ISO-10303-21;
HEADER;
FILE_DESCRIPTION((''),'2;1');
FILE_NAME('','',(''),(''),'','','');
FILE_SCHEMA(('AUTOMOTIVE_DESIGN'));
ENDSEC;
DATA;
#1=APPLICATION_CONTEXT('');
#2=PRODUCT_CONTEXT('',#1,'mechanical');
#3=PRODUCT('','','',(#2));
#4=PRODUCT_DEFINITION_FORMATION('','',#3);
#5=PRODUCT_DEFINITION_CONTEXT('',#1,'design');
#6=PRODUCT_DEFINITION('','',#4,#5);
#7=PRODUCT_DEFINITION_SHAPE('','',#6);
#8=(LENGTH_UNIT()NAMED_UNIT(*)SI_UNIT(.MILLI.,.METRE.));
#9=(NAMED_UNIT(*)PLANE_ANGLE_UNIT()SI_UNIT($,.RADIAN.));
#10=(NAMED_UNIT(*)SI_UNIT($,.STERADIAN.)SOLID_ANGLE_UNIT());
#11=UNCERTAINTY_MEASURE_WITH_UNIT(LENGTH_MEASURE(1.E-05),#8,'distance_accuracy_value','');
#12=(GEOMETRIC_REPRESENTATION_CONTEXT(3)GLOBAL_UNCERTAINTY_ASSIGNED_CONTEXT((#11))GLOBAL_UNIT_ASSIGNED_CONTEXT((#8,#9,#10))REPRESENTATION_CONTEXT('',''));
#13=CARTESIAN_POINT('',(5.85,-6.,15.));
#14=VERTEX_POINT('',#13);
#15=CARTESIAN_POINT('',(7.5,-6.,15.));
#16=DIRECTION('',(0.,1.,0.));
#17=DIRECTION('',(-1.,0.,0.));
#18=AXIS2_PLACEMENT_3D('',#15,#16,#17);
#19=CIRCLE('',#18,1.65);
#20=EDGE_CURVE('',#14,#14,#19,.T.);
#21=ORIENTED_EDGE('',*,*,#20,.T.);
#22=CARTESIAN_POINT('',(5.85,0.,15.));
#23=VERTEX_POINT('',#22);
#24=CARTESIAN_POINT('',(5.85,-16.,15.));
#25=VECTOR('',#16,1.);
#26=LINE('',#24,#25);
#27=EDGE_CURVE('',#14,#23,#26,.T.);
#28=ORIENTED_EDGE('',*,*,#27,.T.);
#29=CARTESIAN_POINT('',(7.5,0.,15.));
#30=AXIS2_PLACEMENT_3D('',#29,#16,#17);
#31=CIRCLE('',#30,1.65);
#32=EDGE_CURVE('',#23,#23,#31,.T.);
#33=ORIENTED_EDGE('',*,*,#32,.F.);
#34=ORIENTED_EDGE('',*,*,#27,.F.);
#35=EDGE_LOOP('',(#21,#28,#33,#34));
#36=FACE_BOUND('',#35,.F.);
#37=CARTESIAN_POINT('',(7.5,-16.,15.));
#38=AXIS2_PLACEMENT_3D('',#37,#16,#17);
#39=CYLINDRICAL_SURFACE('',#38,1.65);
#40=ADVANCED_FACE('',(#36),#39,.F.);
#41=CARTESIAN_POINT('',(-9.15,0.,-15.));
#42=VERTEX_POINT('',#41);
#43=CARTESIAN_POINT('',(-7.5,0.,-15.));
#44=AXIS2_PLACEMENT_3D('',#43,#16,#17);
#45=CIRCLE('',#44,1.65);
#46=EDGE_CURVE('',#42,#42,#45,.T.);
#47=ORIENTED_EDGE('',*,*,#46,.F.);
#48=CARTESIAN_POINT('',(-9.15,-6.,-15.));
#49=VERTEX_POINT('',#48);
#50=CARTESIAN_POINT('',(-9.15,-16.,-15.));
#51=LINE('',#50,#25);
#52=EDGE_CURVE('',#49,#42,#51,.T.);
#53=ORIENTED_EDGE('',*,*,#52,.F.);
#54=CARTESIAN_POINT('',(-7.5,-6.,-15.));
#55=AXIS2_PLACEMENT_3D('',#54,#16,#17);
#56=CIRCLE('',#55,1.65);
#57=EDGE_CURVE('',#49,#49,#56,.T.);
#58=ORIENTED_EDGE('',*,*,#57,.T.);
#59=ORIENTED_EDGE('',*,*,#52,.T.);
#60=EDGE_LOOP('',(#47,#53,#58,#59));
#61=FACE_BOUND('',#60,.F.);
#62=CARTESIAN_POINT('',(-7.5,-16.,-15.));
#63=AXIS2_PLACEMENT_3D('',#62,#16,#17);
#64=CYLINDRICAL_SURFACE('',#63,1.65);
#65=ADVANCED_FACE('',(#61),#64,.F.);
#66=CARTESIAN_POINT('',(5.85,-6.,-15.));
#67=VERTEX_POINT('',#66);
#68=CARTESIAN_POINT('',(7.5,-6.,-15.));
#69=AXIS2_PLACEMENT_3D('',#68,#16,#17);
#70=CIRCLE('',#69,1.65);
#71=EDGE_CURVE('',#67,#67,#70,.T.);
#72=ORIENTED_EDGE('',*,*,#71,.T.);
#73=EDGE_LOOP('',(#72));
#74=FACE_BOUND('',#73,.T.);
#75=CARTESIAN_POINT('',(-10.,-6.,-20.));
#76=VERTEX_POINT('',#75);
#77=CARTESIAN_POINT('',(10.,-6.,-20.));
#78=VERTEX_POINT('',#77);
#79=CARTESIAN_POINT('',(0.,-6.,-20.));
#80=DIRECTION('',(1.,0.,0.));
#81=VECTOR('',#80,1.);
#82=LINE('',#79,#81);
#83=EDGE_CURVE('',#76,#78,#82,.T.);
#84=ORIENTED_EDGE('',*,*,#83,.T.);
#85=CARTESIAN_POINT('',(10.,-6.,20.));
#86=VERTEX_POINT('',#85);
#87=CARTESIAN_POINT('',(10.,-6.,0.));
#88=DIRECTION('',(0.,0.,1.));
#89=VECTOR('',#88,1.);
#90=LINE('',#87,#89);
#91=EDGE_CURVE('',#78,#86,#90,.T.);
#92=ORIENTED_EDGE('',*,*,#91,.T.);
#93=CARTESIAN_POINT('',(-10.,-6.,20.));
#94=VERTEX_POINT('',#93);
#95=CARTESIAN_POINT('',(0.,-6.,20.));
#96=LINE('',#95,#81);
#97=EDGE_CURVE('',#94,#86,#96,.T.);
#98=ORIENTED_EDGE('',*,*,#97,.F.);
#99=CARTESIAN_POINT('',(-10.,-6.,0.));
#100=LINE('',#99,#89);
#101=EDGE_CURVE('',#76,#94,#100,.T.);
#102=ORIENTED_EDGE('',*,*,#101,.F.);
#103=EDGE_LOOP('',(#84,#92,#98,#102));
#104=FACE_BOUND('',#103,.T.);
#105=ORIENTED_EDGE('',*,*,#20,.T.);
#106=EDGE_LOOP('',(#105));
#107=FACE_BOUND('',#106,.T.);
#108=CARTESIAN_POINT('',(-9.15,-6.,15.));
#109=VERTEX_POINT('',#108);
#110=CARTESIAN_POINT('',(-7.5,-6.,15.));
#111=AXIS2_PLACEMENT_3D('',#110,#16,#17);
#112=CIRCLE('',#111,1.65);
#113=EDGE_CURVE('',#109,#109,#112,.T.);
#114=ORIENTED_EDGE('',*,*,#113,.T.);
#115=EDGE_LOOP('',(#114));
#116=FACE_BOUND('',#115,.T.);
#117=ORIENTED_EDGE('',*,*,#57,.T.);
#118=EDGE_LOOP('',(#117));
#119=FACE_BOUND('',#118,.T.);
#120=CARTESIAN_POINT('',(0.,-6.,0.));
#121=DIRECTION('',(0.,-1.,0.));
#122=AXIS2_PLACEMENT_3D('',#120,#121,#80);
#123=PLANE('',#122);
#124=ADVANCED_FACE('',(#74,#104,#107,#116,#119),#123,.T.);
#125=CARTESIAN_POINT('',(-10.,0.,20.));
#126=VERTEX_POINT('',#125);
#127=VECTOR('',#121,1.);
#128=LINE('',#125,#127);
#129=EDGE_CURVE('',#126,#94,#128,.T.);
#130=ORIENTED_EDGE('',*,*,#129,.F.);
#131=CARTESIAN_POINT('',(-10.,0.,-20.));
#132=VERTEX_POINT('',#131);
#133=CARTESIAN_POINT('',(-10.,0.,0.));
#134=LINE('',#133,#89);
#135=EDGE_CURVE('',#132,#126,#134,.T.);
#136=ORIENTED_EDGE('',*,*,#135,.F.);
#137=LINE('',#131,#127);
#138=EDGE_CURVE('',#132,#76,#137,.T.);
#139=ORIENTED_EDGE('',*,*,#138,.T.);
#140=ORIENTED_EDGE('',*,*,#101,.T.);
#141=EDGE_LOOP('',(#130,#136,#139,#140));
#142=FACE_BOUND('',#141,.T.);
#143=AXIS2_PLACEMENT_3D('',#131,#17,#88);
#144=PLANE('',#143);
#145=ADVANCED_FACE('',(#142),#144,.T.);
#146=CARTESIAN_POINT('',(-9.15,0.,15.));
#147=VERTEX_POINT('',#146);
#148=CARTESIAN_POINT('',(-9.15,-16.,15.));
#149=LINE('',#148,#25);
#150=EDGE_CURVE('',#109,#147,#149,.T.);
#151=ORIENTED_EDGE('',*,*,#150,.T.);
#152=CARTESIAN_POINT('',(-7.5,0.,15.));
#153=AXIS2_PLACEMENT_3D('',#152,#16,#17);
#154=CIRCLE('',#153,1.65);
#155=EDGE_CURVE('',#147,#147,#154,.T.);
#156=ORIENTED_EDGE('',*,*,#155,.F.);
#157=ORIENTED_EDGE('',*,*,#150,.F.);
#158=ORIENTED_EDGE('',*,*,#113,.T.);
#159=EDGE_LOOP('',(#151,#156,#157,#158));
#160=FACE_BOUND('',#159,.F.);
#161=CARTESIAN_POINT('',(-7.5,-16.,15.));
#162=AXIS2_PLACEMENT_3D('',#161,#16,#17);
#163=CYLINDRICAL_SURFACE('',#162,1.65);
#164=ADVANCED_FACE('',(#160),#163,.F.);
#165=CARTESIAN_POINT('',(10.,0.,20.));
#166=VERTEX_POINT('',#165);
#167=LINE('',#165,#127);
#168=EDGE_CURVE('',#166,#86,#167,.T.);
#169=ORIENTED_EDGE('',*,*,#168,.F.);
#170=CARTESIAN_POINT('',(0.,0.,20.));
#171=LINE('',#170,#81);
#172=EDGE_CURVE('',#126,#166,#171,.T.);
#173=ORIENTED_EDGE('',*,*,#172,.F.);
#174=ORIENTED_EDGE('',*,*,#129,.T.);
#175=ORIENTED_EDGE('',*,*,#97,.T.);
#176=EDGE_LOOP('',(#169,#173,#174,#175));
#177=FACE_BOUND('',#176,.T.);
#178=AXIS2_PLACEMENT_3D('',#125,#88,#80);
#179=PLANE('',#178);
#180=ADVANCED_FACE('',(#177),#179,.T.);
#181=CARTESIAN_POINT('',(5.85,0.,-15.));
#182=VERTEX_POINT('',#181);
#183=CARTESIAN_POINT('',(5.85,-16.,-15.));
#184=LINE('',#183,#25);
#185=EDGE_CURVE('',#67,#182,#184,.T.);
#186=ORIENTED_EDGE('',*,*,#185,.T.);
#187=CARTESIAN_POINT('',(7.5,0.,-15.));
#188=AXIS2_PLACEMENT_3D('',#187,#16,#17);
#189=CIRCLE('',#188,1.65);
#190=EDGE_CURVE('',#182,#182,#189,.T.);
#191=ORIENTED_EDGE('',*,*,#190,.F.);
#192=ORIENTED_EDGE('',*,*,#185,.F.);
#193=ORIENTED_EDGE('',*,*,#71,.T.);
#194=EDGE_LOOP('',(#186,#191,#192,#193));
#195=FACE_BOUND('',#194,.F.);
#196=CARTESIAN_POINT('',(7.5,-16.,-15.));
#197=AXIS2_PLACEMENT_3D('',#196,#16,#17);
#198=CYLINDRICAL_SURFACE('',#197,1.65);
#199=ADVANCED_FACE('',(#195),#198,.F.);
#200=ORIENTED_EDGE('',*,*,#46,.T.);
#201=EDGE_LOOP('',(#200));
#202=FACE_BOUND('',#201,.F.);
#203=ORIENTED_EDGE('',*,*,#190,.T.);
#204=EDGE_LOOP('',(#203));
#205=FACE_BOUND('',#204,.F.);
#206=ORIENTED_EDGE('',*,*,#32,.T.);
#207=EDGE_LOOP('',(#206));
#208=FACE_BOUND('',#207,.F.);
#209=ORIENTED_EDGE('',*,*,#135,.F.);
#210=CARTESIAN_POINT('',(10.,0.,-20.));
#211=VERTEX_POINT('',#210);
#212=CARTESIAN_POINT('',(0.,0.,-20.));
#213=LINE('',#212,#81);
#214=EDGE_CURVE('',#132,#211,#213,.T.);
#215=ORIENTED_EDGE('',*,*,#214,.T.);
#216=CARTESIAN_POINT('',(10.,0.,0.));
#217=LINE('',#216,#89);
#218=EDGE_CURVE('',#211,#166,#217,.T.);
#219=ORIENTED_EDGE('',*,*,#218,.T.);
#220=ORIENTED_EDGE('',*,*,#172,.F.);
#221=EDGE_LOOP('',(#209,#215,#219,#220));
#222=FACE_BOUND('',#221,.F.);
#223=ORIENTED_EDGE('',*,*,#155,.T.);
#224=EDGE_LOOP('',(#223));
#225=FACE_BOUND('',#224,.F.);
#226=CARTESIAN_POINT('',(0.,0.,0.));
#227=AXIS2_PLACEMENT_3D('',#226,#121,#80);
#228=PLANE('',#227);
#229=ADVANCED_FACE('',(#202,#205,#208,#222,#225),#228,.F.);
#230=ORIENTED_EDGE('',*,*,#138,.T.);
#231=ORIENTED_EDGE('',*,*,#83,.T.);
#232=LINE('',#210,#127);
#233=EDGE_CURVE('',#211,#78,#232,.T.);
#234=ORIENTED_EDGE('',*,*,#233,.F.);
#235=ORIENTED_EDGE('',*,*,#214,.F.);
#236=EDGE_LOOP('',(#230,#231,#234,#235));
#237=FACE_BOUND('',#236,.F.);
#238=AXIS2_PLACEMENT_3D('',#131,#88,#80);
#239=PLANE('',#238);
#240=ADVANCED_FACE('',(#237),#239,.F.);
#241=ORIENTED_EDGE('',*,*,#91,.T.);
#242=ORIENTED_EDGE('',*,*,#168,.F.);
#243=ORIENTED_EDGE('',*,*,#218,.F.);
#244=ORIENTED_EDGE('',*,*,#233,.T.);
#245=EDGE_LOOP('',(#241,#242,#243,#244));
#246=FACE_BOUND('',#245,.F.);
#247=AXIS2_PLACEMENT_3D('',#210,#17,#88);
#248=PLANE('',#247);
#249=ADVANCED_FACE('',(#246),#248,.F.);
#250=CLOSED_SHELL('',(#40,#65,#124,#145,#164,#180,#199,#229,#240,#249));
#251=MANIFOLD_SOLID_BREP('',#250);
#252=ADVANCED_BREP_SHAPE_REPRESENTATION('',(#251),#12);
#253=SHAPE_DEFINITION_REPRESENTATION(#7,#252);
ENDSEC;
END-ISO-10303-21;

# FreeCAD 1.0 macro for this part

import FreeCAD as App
import Part
import Sketcher

V = App.Vector
Q = App.Units.Quantity

doc = App.newDocument("Part")
body = doc.addObject("PartDesign::Body", "Body")

# Sketch on XZ plane
sketch1 = body.newObject("Sketcher::SketchObject", "Sketch")
sketch1.AttachmentSupport = (doc.getObject("XZ_Plane"), [""])
sketch1.MapMode = "FlatFace"
sketch1.addGeometry(Part.LineSegment(V(-10, 20, 0), V(-10, -20, 0)), False)
sketch1.addGeometry(Part.LineSegment(V(-10, -20, 0), V(10, -20, 0)), False)
sketch1.addGeometry(Part.LineSegment(V(10, -20, 0), V(10, 20, 0)), False)
sketch1.addGeometry(Part.LineSegment(V(10, 20, 0), V(-10, 20, 0)), False)
sketch1.addConstraint(Sketcher.Constraint("Coincident", 0, 2, 1, 1))
sketch1.addConstraint(Sketcher.Constraint("Coincident", 1, 2, 2, 1))
sketch1.addConstraint(Sketcher.Constraint("Coincident", 2, 2, 3, 1))
sketch1.addConstraint(Sketcher.Constraint("Coincident", 3, 2, 0, 1))
sketch1.addConstraint(Sketcher.Constraint("Vertical", 0))
sketch1.addConstraint(Sketcher.Constraint("Horizontal", 1))
sketch1.addConstraint(Sketcher.Constraint("Vertical", 2))
sketch1.addConstraint(Sketcher.Constraint("Horizontal", 3))
sketch1.addConstraint(Sketcher.Constraint("Symmetric", 0, 2, 2, 2, -1, 1))
sketch1.addConstraint(Sketcher.Constraint("DistanceX", 1, 1, 1, 2, Q("20 mm")))
sketch1.addConstraint(Sketcher.Constraint("DistanceY", 0, 2, 0, 1, Q("40 mm")))
pad1 = body.newObject("PartDesign::Pad", "Pad")
pad1.Profile = sketch1
pad1.Length = 6

# Sketch on XZ plane
sketch2 = body.newObject("Sketcher::SketchObject", "Sketch001")
sketch2.AttachmentSupport = (doc.getObject("XZ_Plane"), [""])
sketch2.MapMode = "FlatFace"
sketch2.AttachmentOffset = App.Placement(V(0, 0, 6), App.Rotation())
sketch2.addGeometry(Part.Circle(V(-7.5, 15, 0), V(0, 0, 1), 1.65), False)
sketch2.addGeometry(Part.Circle(V(7.5, 15, 0), V(0, 0, 1), 1.65), False)
sketch2.addGeometry(Part.Circle(V(7.5, -15, 0), V(0, 0, 1), 1.65), False)
sketch2.addGeometry(Part.Circle(V(-7.5, -15, 0), V(0, 0, 1), 1.65), False)
sketch2.addConstraint(Sketcher.Constraint("Equal", 0, 1))
sketch2.addConstraint(Sketcher.Constraint("Equal", 1, 2))
sketch2.addConstraint(Sketcher.Constraint("Equal", 2, 3))
sketch2.addConstraint(Sketcher.Constraint("Symmetric", 0, 3, 2, 3, -1, 1))
sketch2.addConstraint(Sketcher.Constraint("Symmetric", 1, 3, 3, 3, -1, 1))
sketch2.addConstraint(Sketcher.Constraint("Symmetric", 0, 3, 1, 3, -2))
sketch2.addConstraint(Sketcher.Constraint("Diameter", 0, Q("3.3 mm")))
sketch2.addConstraint(Sketcher.Constraint("DistanceY", -1, 1, 0, 3, Q("15 mm")))
sketch2.addConstraint(Sketcher.Constraint("DistanceX", 0, 3, 1, 3, Q("15 mm")))
doc.recompute()
hole = body.newObject("PartDesign::Hole", "Hole")
hole.Profile = sketch2
hole.ThreadType = "None"
hole.Diameter = 3.3
hole.DepthType = "Dimension"
hole.Depth = 10
hole.DrillPoint = "Angled"
hole.DrillPointAngle = 118

doc.recompute()
